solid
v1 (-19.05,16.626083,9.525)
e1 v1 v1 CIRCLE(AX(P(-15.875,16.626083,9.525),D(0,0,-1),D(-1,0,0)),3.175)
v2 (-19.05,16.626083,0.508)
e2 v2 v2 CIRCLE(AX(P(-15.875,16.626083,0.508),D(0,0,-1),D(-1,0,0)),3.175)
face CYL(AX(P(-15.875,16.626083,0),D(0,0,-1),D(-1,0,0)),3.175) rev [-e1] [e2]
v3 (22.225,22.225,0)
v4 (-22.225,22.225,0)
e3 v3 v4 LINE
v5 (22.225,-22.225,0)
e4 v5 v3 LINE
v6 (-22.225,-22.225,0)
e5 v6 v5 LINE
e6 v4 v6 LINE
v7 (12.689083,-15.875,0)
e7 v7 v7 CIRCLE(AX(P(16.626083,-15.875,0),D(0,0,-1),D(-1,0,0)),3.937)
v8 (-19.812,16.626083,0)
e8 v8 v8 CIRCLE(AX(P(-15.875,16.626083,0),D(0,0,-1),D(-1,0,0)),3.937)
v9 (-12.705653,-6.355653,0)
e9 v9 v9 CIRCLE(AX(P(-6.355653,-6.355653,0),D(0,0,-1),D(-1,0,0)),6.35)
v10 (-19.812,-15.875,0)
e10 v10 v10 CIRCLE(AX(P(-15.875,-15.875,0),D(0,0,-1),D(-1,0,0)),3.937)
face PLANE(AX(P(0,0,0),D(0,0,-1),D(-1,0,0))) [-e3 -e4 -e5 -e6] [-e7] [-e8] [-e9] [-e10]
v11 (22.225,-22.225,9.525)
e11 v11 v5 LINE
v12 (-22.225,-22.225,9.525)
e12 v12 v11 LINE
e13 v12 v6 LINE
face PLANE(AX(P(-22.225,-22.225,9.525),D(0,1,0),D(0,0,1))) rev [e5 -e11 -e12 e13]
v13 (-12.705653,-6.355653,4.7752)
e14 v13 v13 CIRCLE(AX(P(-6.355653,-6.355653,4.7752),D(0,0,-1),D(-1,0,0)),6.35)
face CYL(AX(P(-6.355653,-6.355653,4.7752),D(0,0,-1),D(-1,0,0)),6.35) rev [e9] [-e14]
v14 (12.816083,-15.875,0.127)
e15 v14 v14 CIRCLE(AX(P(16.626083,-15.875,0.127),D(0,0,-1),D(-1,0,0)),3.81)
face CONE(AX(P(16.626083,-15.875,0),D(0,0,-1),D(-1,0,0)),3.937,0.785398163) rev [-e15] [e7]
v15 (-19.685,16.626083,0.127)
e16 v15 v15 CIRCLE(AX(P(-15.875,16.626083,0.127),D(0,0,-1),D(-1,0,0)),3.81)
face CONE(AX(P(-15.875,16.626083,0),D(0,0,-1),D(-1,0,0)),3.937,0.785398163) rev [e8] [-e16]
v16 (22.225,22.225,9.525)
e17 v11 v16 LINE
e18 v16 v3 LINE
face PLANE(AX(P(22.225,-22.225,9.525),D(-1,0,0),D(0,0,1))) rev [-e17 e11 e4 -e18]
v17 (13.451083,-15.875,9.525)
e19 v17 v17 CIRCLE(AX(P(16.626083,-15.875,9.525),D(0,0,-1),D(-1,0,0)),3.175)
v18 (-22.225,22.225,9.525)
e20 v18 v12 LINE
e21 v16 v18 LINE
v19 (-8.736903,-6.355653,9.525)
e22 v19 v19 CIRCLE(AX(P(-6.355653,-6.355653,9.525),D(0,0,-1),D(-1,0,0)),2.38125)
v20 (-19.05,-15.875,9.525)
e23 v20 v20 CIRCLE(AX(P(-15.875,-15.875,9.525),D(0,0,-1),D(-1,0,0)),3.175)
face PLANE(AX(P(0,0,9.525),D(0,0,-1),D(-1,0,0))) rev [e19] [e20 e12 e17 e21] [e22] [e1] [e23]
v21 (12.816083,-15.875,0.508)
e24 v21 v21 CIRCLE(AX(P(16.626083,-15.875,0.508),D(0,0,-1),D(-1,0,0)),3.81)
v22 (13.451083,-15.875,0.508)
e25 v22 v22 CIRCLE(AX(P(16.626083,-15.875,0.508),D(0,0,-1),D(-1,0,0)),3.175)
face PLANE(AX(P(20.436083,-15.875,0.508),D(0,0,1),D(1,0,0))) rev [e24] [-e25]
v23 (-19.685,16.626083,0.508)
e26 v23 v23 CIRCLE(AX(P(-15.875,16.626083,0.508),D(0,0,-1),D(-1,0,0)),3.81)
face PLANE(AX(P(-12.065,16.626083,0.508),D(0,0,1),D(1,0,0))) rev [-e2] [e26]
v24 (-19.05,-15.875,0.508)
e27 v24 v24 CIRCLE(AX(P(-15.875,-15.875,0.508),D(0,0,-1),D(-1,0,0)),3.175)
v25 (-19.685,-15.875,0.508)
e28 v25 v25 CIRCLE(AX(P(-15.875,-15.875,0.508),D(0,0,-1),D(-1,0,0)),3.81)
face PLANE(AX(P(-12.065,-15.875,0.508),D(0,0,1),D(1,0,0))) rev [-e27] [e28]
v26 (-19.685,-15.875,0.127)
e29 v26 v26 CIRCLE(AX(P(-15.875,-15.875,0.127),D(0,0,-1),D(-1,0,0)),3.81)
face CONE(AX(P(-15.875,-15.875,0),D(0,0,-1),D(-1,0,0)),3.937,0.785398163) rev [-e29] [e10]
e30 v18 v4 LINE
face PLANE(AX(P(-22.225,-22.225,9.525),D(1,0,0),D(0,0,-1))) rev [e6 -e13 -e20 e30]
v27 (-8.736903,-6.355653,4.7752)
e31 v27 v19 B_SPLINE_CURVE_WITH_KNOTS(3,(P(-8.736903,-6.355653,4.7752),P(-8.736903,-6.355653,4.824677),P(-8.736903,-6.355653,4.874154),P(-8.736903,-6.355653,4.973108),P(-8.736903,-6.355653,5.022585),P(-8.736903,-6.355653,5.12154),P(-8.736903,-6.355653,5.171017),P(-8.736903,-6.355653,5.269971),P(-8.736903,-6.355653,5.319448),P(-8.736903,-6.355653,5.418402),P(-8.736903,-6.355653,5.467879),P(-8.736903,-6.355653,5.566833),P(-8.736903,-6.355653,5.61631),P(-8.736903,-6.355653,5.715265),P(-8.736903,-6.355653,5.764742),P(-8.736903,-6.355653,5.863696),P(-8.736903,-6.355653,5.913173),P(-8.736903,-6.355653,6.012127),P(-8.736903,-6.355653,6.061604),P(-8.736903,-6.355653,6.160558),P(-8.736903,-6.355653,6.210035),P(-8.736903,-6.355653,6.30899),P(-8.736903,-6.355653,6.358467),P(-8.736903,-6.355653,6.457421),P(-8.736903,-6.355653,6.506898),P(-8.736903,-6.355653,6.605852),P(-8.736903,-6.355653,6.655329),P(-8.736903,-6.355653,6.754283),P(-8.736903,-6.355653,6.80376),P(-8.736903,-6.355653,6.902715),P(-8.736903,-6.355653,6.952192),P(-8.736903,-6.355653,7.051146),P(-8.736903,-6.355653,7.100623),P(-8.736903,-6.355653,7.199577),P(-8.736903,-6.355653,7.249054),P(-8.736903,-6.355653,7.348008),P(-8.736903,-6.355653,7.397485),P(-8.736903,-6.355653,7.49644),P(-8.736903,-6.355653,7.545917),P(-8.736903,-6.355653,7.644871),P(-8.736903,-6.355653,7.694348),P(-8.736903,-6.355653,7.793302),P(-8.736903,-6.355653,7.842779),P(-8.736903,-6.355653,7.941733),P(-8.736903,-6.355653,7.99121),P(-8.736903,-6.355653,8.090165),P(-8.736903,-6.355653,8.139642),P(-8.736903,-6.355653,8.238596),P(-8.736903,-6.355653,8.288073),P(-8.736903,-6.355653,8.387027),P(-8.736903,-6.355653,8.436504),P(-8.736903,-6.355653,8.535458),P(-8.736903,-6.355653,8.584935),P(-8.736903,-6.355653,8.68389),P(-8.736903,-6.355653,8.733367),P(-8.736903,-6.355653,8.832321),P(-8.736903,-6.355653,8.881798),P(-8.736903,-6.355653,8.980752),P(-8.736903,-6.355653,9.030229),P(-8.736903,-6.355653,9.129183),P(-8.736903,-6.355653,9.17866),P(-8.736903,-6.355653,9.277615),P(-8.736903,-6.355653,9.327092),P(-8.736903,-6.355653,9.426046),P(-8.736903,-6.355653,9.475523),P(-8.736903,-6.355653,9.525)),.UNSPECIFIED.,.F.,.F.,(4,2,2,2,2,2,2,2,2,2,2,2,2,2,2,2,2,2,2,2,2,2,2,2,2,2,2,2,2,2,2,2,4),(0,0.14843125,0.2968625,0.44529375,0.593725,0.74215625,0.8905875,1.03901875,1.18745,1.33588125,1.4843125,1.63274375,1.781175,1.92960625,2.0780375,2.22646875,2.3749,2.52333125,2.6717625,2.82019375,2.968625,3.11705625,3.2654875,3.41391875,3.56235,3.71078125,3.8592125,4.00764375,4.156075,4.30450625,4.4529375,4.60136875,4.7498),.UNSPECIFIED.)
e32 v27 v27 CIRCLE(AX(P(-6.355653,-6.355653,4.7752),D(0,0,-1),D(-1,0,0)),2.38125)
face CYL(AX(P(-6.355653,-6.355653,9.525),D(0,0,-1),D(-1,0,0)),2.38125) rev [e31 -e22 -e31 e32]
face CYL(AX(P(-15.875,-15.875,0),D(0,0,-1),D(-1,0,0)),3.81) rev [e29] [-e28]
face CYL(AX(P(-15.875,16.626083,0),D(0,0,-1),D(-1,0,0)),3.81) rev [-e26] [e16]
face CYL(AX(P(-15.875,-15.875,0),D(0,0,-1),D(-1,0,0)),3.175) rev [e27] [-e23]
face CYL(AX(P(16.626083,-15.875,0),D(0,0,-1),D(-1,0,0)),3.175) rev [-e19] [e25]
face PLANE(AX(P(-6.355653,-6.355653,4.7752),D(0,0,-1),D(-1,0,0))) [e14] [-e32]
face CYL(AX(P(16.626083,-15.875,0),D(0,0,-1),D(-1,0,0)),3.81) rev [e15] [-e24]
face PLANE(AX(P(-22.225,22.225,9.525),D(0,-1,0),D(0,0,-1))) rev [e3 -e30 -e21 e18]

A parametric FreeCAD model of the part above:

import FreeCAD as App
import Part
import Sketcher
Q = App.Units.Quantity

doc = App.newDocument("Part")
body = doc.addObject("PartDesign::Body", "Body")

sketch1 = body.newObject("Sketcher::SketchObject", "Sketch")
sketch1.AttachmentSupport = (doc.getObject("XY_Plane"), [""])
sketch1.MapMode = "FlatFace"
sketch1.addGeometry([
    Part.LineSegment(App.Vector(-22.225, 22.225, 0), App.Vector(-22.225, -22.225, 0)),
    Part.LineSegment(App.Vector(-22.225, -22.225, 0), App.Vector(22.225, -22.225, 0)),
    Part.LineSegment(App.Vector(22.225, -22.225, 0), App.Vector(22.225, 22.225, 0)),
    Part.LineSegment(App.Vector(22.225, 22.225, 0), App.Vector(-22.225, 22.225, 0)),
], False)
sketch1.addConstraint([
    Sketcher.Constraint("Coincident", 0, 2, 1, 1),
    Sketcher.Constraint("Coincident", 1, 2, 2, 1),
    Sketcher.Constraint("Coincident", 2, 2, 3, 1),
    Sketcher.Constraint("Coincident", 3, 2, 0, 1),
    Sketcher.Constraint("Vertical", 0),
    Sketcher.Constraint("Horizontal", 1),
    Sketcher.Constraint("Vertical", 2),
    Sketcher.Constraint("Horizontal", 3),
    Sketcher.Constraint("Symmetric", 0, 2, 2, 2, -1, 1),
    Sketcher.Constraint("Equal", 3, 0),
    Sketcher.Constraint("DistanceX", 1, 1, 1, 2, Q("1.75 in")),
])
pad1 = body.newObject("PartDesign::Pad", "Pad")
pad1.Profile = sketch1
pad1.Length = Q("0.375 in")

sketch2 = body.newObject("Sketcher::SketchObject", "Sketch001")
sketch2.AttachmentSupport = (doc.getObject("YZ_Plane"), [""])
sketch2.MapMode = "FlatFace"
sketch2.AttachmentOffset = App.Placement(App.Vector(0, 0, -0.625 * 25.4), App.Rotation())
sketch2.addGeometry([
    Part.LineSegment(App.Vector(16.626083, 9.525, 0), App.Vector(16.626083, 0, 0)),
    Part.LineSegment(App.Vector(16.626083, 0, 0), App.Vector(20.563083, 0, 0)),
    Part.LineSegment(App.Vector(20.563083, 0, 0), App.Vector(20.436083, 0.127, 0)),
    Part.LineSegment(App.Vector(20.436083, 0.127, 0), App.Vector(20.436083, 0.508, 0)),
    Part.LineSegment(App.Vector(20.436083, 0.508, 0), App.Vector(19.801083, 0.508, 0)),
    Part.LineSegment(App.Vector(19.801083, 0.508, 0), App.Vector(19.801083, 9.525, 0)),
    Part.LineSegment(App.Vector(19.801083, 9.525, 0), App.Vector(16.626083, 9.525, 0)),
], False)
sketch2.addGeometry(Part.LineSegment(App.Vector(16.626083, 0, 0), App.Vector(16.626083, 9.525, 0)), True)
sketch2.addConstraint([
    Sketcher.Constraint("Coincident", 0, 2, 1, 1),
    Sketcher.Constraint("Coincident", 1, 2, 2, 1),
    Sketcher.Constraint("Coincident", 2, 2, 3, 1),
    Sketcher.Constraint("Coincident", 3, 2, 4, 1),
    Sketcher.Constraint("Coincident", 4, 2, 5, 1),
    Sketcher.Constraint("Coincident", 5, 2, 6, 1),
    Sketcher.Constraint("Coincident", 6, 2, 0, 1),
    Sketcher.Constraint("Vertical", 0),
    Sketcher.Constraint("Horizontal", 1),
    Sketcher.Constraint("Vertical", 3),
    Sketcher.Constraint("Horizontal", 4),
    Sketcher.Constraint("Vertical", 5),
    Sketcher.Constraint("Horizontal", 6),
    Sketcher.Constraint("Vertical", 7),
    Sketcher.Constraint("Coincident", 7, 1, 0, 2),
    Sketcher.Constraint("PointOnObject", 0, 2, -1),
    Sketcher.Constraint("Horizontal", 5, 2, 7, 2),
    Sketcher.Constraint("Angle", 2, Q("135 deg")),
    Sketcher.Constraint("DistanceX", 1, 1, 1, 2, Q("0.155 in")),
    Sketcher.Constraint("DistanceX", 4, 2, 4, 1, Q("0.025 in")),
    Sketcher.Constraint("DistanceX", 6, 2, 6, 1, Q("0.125 in")),
    Sketcher.Constraint("DistanceY", 0, 2, 0, 1, Q("0.375 in")),
    Sketcher.Constraint("DistanceY", 3, 1, 3, 2, Q("0.015 in")),
    Sketcher.Constraint("DistanceX", -1, 1, 0, 2, Q("16.626083 mm")),
])
groove = body.newObject("PartDesign::Groove", "Groove")
groove.Profile = sketch2
groove.ReferenceAxis = (sketch2, ["Axis0"])
groove.Angle = 360
doc.recompute()

datumline = body.newObject("PartDesign::Line", "DatumLine")
datumline.Placement = App.Placement(App.Vector(0, 0, 0), App.Rotation(App.Vector(0, 0, 1), App.Vector(0.707106781, -0.707106781, 0)))
linearpattern = body.newObject("PartDesign::LinearPattern", "LinearPattern")
linearpattern.Originals = [groove]
linearpattern.Direction = (datumline, [""])
linearpattern.Mode = "offset"
linearpattern.Offset = 45.963473
linearpattern.Occurrences = 2
body.Tip = linearpattern
doc.recompute()

linearpattern2 = body.newObject("PartDesign::LinearPattern", "LinearPattern001")
linearpattern2.Originals = [groove]
linearpattern2.Direction = (doc.getObject("Y_Axis"), [""])
linearpattern2.Mode = "offset"
linearpattern2.Offset = 32.501083
linearpattern2.Occurrences = 2
linearpattern2.Reversed = True
body.Tip = linearpattern2

sketch3 = body.newObject("Sketcher::SketchObject", "Sketch002")
sketch3.AttachmentSupport = (doc.getObject("XY_Plane"), [""])
sketch3.MapMode = "FlatFace"
sketch3.addGeometry(Part.Circle(App.Vector(-6.355653, -6.355653, 0), App.Vector(0, 0, 1), 6.35), False)
sketch3.addConstraint([
    Sketcher.Constraint("Diameter", 0, Q("0.5 in")),
    Sketcher.Constraint("DistanceX", 0, 3, -1, 1, Q("6.355653 mm")),
    Sketcher.Constraint("DistanceY", 0, 3, -1, 1, Q("6.355653 mm")),
])
pocket1 = body.newObject("PartDesign::Pocket", "Pocket")
pocket1.Profile = sketch3
pocket1.Length = Q("0.188 in")
pocket1.Reversed = True

sketch4 = body.newObject("Sketcher::SketchObject", "Sketch003")
sketch4.AttachmentSupport = (doc.getObject("XY_Plane"), [""])
sketch4.MapMode = "FlatFace"
sketch4.addGeometry(Part.Circle(App.Vector(-6.355653, -6.355653, 0), App.Vector(0, 0, 1), 2.38125), False)
sketch4.addConstraint([
    Sketcher.Constraint("Diameter", 0, Q("0.1875 in")),
    Sketcher.Constraint("DistanceX", 0, 3, -1, 1, Q("6.355653 mm")),
    Sketcher.Constraint("DistanceY", 0, 3, -1, 1, Q("6.355653 mm")),
])
pocket2 = body.newObject("PartDesign::Pocket", "Pocket001")
pocket2.Profile = sketch4
pocket2.Type = "ThroughAll"
pocket2.Reversed = True

doc.recompute()
